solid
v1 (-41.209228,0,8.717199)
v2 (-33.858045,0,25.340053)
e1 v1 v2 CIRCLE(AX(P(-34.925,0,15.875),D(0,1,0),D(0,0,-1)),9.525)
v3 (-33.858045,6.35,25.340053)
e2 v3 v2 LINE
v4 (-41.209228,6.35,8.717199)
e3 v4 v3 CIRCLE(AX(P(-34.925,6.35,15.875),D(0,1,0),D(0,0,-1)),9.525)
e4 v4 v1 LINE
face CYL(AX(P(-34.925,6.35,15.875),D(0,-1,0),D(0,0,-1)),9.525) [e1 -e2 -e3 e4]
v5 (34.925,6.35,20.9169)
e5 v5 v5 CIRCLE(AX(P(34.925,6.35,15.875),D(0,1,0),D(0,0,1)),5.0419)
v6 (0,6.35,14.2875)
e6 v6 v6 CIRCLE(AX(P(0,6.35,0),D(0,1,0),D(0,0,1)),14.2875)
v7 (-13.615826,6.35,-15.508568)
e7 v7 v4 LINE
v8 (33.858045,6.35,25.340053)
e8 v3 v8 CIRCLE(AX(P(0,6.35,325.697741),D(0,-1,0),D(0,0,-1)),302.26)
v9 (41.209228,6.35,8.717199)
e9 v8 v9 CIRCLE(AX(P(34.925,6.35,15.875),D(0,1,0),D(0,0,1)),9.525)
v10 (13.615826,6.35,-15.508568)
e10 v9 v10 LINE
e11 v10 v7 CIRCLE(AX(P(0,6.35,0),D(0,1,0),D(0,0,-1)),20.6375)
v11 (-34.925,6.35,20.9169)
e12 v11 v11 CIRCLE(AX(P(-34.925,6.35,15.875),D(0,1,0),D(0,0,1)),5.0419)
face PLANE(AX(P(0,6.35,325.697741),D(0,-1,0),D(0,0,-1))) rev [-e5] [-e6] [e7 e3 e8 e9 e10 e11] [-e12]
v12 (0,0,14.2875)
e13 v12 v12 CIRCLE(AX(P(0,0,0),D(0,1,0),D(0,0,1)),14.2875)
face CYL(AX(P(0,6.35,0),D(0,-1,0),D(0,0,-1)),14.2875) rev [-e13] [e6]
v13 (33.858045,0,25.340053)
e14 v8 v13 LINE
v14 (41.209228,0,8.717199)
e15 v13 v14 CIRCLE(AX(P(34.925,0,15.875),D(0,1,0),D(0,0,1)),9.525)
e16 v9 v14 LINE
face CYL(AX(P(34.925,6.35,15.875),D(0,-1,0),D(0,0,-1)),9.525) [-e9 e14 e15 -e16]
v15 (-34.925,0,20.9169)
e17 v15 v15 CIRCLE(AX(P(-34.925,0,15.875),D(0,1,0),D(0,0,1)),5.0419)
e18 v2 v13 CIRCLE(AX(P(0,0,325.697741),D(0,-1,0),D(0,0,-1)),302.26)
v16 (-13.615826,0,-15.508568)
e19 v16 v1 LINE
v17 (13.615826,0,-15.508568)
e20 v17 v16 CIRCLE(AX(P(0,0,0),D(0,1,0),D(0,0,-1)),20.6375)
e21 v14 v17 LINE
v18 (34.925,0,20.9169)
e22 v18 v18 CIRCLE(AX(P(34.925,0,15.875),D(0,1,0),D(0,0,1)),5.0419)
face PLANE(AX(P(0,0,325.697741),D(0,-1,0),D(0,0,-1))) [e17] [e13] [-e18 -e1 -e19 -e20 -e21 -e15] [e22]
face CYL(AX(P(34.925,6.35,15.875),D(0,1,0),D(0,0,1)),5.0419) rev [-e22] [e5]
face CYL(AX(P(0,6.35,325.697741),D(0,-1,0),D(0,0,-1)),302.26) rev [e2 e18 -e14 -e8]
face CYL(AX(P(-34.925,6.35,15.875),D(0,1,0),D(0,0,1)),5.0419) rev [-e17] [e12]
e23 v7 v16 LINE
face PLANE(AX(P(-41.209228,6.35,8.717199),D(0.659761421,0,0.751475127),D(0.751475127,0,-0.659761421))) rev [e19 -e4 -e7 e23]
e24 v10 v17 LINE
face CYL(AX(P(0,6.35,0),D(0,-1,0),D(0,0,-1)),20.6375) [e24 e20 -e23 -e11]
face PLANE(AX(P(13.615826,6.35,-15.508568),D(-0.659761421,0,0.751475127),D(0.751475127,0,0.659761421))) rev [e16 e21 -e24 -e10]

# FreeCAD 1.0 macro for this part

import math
import FreeCAD as App
import Part
import Sketcher

V = App.Vector
Q = App.Units.Quantity

doc = App.newDocument("Part")
params = doc.addObject("Spreadsheet::Sheet", "Params")
for row, (alias, value) in enumerate([
    ("sketch1_radius", "11.9 in"),
    ("sketch1_diameter", "1.125 in"),
    ("sketch1_radius2", "0.375 in"),
    ("sketch1_radius3", "0.8125 in"),
    ("pad1_length", "0.25 in"),
    ("sketch2_diameter", "0.397 in"),
    ("hole_diameter", "0.397 in"),
], start=1):
    params.set(f"A{row}", alias)
    params.set(f"B{row}", "=" + value)
    params.setAlias(f"B{row}", alias)

body = doc.addObject("PartDesign::Body", "Body")

# Sketch on XZ plane
sketch1 = doc.addObject("Sketcher::SketchObject", "Sketch")
body.addObject(sketch1)
sketch1.AttachmentSupport = (doc.XZ_Plane, [""])
sketch1.MapMode = "FlatFace"
sketch1.addGeometry([
    Part.LineSegment(V(-14, -16, 0), V(-41, 9, 0)),  # 0
    Part.ArcOfCircle(Part.Circle(V(-35, 16, 0), V(0, 0, 1), 10), math.radians(84), math.radians(229)),  # 1
    Part.ArcOfCircle(Part.Circle(V(0, 326, 0), V(0, 0, 1), 302), math.radians(-96.43), math.radians(-83.57)),  # 2
    Part.ArcOfCircle(Part.Circle(V(35, 16, 0), V(0, 0, 1), 10), math.radians(-49), math.radians(96)),  # 3
    Part.LineSegment(V(41, 9, 0), V(14, -16, 0)),  # 4
    Part.ArcOfCircle(Part.Circle(V(0, 0, 0), V(0, 0, 1), 21), math.radians(-131), math.radians(-49)),  # 5
    Part.Circle(V(0, 0, 0), V(0, 0, 1), 14),  # 6
], False)
sketch1.addConstraint([
    Sketcher.Constraint("Tangent", 0, 2, 1, 2),
    Sketcher.Constraint("Tangent", 1, 1, 2, 1),
    Sketcher.Constraint("Tangent", 2, 2, 3, 2),
    Sketcher.Constraint("Tangent", 3, 1, 4, 1),
    Sketcher.Constraint("Tangent", 4, 2, 5, 2),
    Sketcher.Constraint("Tangent", 5, 1, 0, 1),
    Sketcher.Constraint("Coincident", 5, 3, -1, 1),
    Sketcher.Constraint("Coincident", 6, 3, -1, 1),
    Sketcher.Constraint("Equal", 1, 3),
    Sketcher.Constraint("Symmetric", 1, 3, 3, 3, -2),
    Sketcher.Constraint("Radius", 2, Q("11.9 in")),
    Sketcher.Constraint("Diameter", 6, Q("1.125 in")),
    Sketcher.Constraint("Radius", 1, Q("0.375 in")),
    Sketcher.Constraint("Radius", 5, Q("0.8125 in")),
    Sketcher.Constraint("DistanceX", 1, 3, 3, 3, Q("2.75 in")),
    Sketcher.Constraint("DistanceY", -1, 1, 1, 3, Q("0.625 in")),
])
sketch1.setExpression("Constraints[10]", "Params.sketch1_radius")
sketch1.setExpression("Constraints[11]", "Params.sketch1_diameter")
sketch1.setExpression("Constraints[12]", "Params.sketch1_radius2")
sketch1.setExpression("Constraints[13]", "Params.sketch1_radius3")
pad1 = doc.addObject("PartDesign::Pad", "Pad")
body.addObject(pad1)
pad1.Profile = sketch1
pad1.setExpression("Length", "Params.pad1_length")
pad1.Reversed = True

# Sketch on XZ plane
sketch2 = doc.addObject("Sketcher::SketchObject", "Sketch001")
body.addObject(sketch2)
sketch2.AttachmentSupport = (doc.XZ_Plane, [""])
sketch2.MapMode = "FlatFace"
sketch2.AttachmentOffset = App.Placement(V(0, 0, -0.25 * 25.4), App.Rotation())
sketch2.addGeometry([
    Part.Circle(V(-35, 16, 0), V(0, 0, 1), 5),
    Part.Circle(V(35, 16, 0), V(0, 0, 1), 5),
], False)
sketch2.addConstraint([
    Sketcher.Constraint("Equal", 0, 1),
    Sketcher.Constraint("Symmetric", 0, 3, 1, 3, -2),
    Sketcher.Constraint("Diameter", 0, Q("0.397 in")),
    Sketcher.Constraint("DistanceX", 0, 3, 1, 3, Q("2.75 in")),
    Sketcher.Constraint("DistanceY", -1, 1, 0, 3, Q("0.625 in")),
])
sketch2.setExpression("Constraints[2]", "Params.sketch2_diameter")
doc.recompute()
hole = doc.addObject("PartDesign::Hole", "Hole")
body.addObject(hole)
hole.Profile = sketch2
hole.ThreadType = "None"
hole.setExpression("Diameter", "Params.hole_diameter")
hole.DepthType = "ThroughAll"
hole.Reversed = True

doc.recompute()
